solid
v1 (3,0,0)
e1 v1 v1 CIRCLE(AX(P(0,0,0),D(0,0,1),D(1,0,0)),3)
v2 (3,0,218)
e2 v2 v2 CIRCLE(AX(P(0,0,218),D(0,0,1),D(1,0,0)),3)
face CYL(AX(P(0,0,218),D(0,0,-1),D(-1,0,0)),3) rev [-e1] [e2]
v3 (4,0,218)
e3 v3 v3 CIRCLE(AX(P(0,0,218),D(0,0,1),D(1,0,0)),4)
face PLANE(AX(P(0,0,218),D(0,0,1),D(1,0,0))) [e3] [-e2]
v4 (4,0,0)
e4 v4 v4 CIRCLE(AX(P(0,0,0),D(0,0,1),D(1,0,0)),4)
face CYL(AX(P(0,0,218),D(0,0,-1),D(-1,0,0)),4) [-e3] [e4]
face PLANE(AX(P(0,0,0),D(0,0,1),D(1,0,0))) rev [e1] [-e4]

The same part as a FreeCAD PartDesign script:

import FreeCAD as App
import Part
import Sketcher

doc = App.newDocument("Part")
params = doc.addObject("Spreadsheet::Sheet", "Params")
for row, (alias, value) in enumerate([
    ("sketch1_diameter", "8 mm"),
    ("sketch1_diameter2", "6 mm"),
    ("pad1_length", "218 mm"),
], start=1):
    params.set(f"A{row}", alias)
    params.set(f"B{row}", "=" + value)
    params.setAlias(f"B{row}", alias)

body = doc.addObject("PartDesign::Body", "Body")

sketch1 = body.newObject("Sketcher::SketchObject", "Sketch")
sketch1.AttachmentSupport = (doc.getObject("XY_Plane"), [""])
sketch1.MapMode = "FlatFace"
sketch1.addGeometry([
    Part.Circle(App.Vector(0, 0, 0), App.Vector(0, 0, 1), 4),
    Part.Circle(App.Vector(0, 0, 0), App.Vector(0, 0, 1), 3),
], False)
sketch1.addConstraint([
    Sketcher.Constraint("Coincident", 0, 3, -1, 1),
    Sketcher.Constraint("Coincident", 1, 3, -1, 1),
    Sketcher.Constraint("Diameter", 0, 8.0),
    Sketcher.Constraint("Diameter", 1, 6.0),
])
sketch1.setExpression("Constraints[2]", "Params.sketch1_diameter")
sketch1.setExpression("Constraints[3]", "Params.sketch1_diameter2")
pad1 = body.newObject("PartDesign::Pad", "Pad")
pad1.Profile = sketch1
pad1.setExpression("Length", "Params.pad1_length")

doc.recompute()
